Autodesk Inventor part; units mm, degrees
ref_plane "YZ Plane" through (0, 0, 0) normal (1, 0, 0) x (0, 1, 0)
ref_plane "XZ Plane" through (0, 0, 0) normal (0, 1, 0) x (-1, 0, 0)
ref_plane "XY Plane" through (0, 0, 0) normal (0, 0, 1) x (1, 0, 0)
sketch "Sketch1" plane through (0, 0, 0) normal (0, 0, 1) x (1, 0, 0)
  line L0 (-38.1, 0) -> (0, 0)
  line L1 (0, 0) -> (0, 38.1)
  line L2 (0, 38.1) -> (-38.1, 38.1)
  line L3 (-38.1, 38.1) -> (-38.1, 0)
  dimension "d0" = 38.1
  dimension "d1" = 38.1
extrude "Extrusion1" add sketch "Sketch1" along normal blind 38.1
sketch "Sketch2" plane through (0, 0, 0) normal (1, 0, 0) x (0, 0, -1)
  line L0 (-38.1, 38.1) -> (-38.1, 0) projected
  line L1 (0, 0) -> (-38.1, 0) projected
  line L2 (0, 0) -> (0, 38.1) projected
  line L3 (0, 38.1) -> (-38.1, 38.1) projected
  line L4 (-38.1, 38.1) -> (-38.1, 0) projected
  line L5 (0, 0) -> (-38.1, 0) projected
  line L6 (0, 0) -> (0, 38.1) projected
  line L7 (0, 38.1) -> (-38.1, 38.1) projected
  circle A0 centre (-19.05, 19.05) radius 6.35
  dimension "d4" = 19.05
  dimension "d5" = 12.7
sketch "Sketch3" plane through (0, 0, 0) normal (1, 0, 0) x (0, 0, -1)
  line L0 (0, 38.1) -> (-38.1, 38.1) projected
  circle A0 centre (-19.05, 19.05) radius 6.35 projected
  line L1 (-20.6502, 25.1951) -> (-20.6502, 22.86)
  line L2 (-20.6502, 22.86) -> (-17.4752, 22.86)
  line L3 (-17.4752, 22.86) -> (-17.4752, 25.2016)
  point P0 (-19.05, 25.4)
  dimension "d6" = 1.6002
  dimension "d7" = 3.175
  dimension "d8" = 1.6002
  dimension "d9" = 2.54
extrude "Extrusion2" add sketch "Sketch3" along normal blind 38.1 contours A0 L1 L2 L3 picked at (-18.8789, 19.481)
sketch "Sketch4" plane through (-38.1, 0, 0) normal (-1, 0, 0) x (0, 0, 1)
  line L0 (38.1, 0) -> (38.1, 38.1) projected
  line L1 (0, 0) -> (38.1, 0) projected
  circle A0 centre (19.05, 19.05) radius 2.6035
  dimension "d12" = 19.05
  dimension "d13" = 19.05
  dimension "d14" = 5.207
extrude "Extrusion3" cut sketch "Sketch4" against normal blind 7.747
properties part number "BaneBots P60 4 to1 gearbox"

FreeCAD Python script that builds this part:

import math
import FreeCAD as App
import Part
import Sketcher

V = App.Vector
Q = App.Units.Quantity

doc = App.newDocument("Part")
body = doc.addObject("PartDesign::Body", "Body")

sketch1 = body.newObject("Sketcher::SketchObject", "Sketch")
sketch1.AttachmentSupport = (doc.getObject("XY_Plane"), [""])
sketch1.MapMode = "FlatFace"
sketch1.addGeometry(Part.LineSegment(V(-38.1, 38.1, 0), V(-38.1, 0, 0)), False)
sketch1.addGeometry(Part.LineSegment(V(-38.1, 0, 0), V(0, 0, 0)), False)
sketch1.addGeometry(Part.LineSegment(V(0, 0, 0), V(0, 38.1, 0)), False)
sketch1.addGeometry(Part.LineSegment(V(0, 38.1, 0), V(-38.1, 38.1, 0)), False)
sketch1.addConstraint(Sketcher.Constraint("Coincident", 0, 2, 1, 1))
sketch1.addConstraint(Sketcher.Constraint("Coincident", 1, 2, 2, 1))
sketch1.addConstraint(Sketcher.Constraint("Coincident", 2, 2, 3, 1))
sketch1.addConstraint(Sketcher.Constraint("Coincident", 3, 2, 0, 1))
sketch1.addConstraint(Sketcher.Constraint("Vertical", 0))
sketch1.addConstraint(Sketcher.Constraint("Horizontal", 1))
sketch1.addConstraint(Sketcher.Constraint("Vertical", 2))
sketch1.addConstraint(Sketcher.Constraint("Horizontal", 3))
sketch1.addConstraint(Sketcher.Constraint("Coincident", 1, 2, -1, 1))
sketch1.addConstraint(Sketcher.Constraint("Equal", 3, 0))
sketch1.addConstraint(Sketcher.Constraint("DistanceX", 1, 1, 1, 2, Q("1.5 in")))
pad1 = body.newObject("PartDesign::Pad", "Pad")
pad1.Profile = sketch1
pad1.Length = Q("1.5 in")

sketch2 = body.newObject("Sketcher::SketchObject", "Sketch001")
sketch2.AttachmentSupport = (doc.getObject("YZ_Plane"), [""])
sketch2.MapMode = "FlatFace"
sketch2.addGeometry(Part.ArcOfCircle(Part.Circle(V(19.05, 19.05, 0), V(0, 0, 1), 6.35), math.radians(14.595821), math.radians(345.640747)), False)
sketch2.addGeometry(Part.LineSegment(V(25.2016, 17.4752, 0), V(22.86, 17.4752, 0)), False)
sketch2.addGeometry(Part.LineSegment(V(22.86, 17.4752, 0), V(22.86, 20.6502, 0)), False)
sketch2.addGeometry(Part.LineSegment(V(22.86, 20.6502, 0), V(25.1951, 20.6502, 0)), False)
sketch2.addConstraint(Sketcher.Constraint("Coincident", 0, 2, 1, 1))
sketch2.addConstraint(Sketcher.Constraint("Coincident", 1, 2, 2, 1))
sketch2.addConstraint(Sketcher.Constraint("Coincident", 2, 2, 3, 1))
sketch2.addConstraint(Sketcher.Constraint("Coincident", 3, 2, 0, 1))
sketch2.addConstraint(Sketcher.Constraint("Horizontal", 1))
sketch2.addConstraint(Sketcher.Constraint("Vertical", 2))
sketch2.addConstraint(Sketcher.Constraint("Horizontal", 3))
sketch2.addConstraint(Sketcher.Constraint("DistanceY", 2, 1, 2, 2, Q("0.125 in")))
sketch2.addConstraint(Sketcher.Constraint("Radius", 0, Q("0.25 in")))
sketch2.addConstraint(Sketcher.Constraint("DistanceY", 0, 3, 2, 2, Q("0.063 in")))
sketch2.addConstraint(Sketcher.Constraint("DistanceX", -1, 1, 1, 2, Q("0.9 in")))
sketch2.addConstraint(Sketcher.Constraint("DistanceX", -1, 1, 0, 3, Q("0.75 in")))
sketch2.addConstraint(Sketcher.Constraint("DistanceY", -1, 1, 0, 3, Q("0.75 in")))
pad2 = body.newObject("PartDesign::Pad", "Pad001")
pad2.Profile = sketch2
pad2.Length = Q("1.5 in")

sketch3 = body.newObject("Sketcher::SketchObject", "Sketch002")
sketch3.AttachmentSupport = (doc.getObject("YZ_Plane"), [""])
sketch3.MapMode = "FlatFace"
sketch3.AttachmentOffset = App.Placement(V(0, 0, -1.5 * 25.4), App.Rotation())
sketch3.addGeometry(Part.Circle(V(19.05, 19.05, 0), V(0, 0, 1), 2.6035), False)
sketch3.addConstraint(Sketcher.Constraint("Diameter", 0, Q("0.205 in")))
sketch3.addConstraint(Sketcher.Constraint("DistanceX", -1, 1, 0, 3, Q("0.75 in")))
sketch3.addConstraint(Sketcher.Constraint("DistanceY", -1, 1, 0, 3, Q("0.75 in")))
pocket1 = body.newObject("PartDesign::Pocket", "Pocket")
pocket1.Profile = sketch3
pocket1.Length = Q("0.305 in")
pocket1.Reversed = True

doc.recompute()
